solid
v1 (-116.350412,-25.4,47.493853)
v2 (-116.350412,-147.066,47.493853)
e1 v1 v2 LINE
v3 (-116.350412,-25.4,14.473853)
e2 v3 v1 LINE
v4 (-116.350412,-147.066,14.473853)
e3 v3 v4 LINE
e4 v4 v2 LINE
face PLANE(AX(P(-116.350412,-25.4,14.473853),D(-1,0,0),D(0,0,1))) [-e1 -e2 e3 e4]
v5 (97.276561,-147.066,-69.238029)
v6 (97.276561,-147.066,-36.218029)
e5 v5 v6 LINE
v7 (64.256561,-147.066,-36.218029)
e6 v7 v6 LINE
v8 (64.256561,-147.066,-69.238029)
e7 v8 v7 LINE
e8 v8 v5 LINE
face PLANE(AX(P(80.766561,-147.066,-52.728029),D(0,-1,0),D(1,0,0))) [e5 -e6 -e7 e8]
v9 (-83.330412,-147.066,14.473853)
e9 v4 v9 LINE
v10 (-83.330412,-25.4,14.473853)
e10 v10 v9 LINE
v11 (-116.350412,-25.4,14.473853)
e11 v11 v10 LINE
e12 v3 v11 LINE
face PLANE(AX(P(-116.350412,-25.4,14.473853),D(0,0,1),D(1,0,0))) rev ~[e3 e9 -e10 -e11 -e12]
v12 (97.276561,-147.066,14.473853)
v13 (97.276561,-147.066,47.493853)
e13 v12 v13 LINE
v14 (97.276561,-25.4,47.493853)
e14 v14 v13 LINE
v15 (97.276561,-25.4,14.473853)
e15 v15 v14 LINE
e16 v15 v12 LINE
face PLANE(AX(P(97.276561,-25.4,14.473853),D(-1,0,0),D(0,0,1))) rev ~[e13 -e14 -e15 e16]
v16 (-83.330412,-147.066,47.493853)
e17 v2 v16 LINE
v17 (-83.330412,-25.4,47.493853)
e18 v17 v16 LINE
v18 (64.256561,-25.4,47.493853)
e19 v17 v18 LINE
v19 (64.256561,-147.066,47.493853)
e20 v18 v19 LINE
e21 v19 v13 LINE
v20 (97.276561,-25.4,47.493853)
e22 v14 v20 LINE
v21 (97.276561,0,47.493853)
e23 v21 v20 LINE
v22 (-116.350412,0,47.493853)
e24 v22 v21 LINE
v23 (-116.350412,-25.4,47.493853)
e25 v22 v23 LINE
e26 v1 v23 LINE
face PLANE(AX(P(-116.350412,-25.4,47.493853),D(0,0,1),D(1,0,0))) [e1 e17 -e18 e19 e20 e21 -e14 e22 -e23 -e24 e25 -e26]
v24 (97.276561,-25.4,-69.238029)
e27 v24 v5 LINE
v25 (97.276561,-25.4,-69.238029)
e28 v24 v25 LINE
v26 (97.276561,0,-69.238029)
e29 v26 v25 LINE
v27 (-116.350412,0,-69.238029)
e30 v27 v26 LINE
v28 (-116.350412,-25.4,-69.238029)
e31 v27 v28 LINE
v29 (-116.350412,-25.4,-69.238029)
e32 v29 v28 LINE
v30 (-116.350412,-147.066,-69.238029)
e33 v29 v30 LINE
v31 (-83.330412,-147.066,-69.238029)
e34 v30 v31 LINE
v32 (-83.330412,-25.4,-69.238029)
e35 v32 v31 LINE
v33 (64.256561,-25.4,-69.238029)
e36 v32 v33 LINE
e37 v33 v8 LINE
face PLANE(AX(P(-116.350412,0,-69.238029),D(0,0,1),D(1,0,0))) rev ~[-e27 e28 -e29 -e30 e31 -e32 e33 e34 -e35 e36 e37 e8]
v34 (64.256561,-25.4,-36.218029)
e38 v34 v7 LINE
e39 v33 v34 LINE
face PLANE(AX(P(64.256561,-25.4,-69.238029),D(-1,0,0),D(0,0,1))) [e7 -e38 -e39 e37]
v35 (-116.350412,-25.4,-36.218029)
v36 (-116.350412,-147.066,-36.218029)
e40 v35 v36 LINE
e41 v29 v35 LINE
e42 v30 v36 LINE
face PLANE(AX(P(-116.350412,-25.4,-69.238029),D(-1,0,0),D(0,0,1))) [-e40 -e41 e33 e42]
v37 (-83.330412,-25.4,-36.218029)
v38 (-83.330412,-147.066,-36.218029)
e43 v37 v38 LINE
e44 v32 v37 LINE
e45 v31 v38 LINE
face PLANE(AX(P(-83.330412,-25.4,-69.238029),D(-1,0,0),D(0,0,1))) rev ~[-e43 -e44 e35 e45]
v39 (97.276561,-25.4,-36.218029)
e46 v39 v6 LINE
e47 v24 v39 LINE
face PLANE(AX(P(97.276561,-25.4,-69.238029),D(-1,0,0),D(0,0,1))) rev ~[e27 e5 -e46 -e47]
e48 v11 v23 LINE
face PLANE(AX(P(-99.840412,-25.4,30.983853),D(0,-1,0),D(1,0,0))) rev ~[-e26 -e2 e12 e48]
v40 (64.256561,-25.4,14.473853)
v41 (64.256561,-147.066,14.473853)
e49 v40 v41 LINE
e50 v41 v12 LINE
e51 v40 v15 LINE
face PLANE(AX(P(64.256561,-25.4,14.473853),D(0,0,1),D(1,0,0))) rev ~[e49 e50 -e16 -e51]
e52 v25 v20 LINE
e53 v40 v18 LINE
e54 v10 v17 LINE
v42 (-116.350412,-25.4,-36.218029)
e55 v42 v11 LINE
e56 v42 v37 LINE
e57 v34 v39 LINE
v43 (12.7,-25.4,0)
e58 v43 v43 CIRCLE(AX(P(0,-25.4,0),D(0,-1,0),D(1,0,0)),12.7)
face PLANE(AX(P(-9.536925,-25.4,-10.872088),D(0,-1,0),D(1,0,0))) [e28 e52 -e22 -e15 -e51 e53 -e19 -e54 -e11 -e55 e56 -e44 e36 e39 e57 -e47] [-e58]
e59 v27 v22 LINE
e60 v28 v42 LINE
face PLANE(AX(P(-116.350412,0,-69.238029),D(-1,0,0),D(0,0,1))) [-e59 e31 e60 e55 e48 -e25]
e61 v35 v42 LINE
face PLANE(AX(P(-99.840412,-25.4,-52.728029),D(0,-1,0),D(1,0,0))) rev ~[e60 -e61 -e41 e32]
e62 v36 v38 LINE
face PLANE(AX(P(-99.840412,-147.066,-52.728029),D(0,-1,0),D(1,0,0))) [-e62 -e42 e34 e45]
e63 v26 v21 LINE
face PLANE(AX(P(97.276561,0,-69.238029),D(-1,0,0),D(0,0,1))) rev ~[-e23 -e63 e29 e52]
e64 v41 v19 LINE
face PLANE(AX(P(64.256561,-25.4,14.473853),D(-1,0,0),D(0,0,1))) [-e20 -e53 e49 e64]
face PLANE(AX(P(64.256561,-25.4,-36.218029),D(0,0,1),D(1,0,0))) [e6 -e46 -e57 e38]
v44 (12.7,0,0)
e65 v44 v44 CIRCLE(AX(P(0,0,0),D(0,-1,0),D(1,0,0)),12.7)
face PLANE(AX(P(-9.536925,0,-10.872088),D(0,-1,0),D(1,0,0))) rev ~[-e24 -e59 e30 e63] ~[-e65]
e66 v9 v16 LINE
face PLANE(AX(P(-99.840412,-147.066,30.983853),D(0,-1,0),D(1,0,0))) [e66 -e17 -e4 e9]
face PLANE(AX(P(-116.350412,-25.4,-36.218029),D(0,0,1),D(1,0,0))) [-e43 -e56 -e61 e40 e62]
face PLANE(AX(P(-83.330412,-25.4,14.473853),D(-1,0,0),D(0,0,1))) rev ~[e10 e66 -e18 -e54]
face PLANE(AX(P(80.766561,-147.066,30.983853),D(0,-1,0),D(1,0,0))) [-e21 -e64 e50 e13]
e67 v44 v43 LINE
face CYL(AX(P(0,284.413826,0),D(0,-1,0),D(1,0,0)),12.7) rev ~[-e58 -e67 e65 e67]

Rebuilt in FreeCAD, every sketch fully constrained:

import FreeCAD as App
import Part
import Sketcher
from FreeCAD import Vector
Q = App.Units.Quantity


def add_polygon(sketch, points):
    """Adds a closed chain of lines whose ends are joined by coincident constraints."""
    first, n = sketch.GeometryCount, len(points)
    for a, b in zip(points, points[1:] + points[:1]):
        sketch.addGeometry(Part.LineSegment(App.Vector(*a, 0), App.Vector(*b, 0)), False)
    for i in range(n):
        sketch.addConstraint(Sketcher.Constraint("Coincident", first + i, 2, first + (i + 1) % n, 1))

doc = App.newDocument("Part")
body = doc.addObject("PartDesign::Body", "Body")

# Sketch on XZ plane
sketch1 = body.newObject("Sketcher::SketchObject", "Sketch")
sketch1.AttachmentSupport = (doc.getObject("XZ_Plane"), [""])
sketch1.MapMode = "FlatFace"
add_polygon(sketch1, [(-116.350412, 47.493853), (-116.350412, -69.238029), (97.276561, -69.238029), (97.276561, 47.493853)])  # lines 0-3
sketch1.addConstraint([
    Sketcher.Constraint("Vertical", 0),
    Sketcher.Constraint("Horizontal", 1),
    Sketcher.Constraint("Vertical", 2),
    Sketcher.Constraint("Horizontal", 3),
    Sketcher.Constraint("DistanceY", 0, 2, 0, 1, 116.731882),
    Sketcher.Constraint("DistanceX", 1, 1, 1, 2, 213.626973),
    Sketcher.Constraint("DistanceX", 0, 2, -1, 1, 116.350412),
    Sketcher.Constraint("DistanceY", 0, 2, -1, 1, 69.238029),
])
pad1 = body.newObject("PartDesign::Pad", "Pad")
pad1.Profile = sketch1
pad1.Length = Q("1 in")

# Sketch on XZ plane
sketch2 = body.newObject("Sketcher::SketchObject", "Sketch001")
sketch2.AttachmentSupport = (doc.getObject("XZ_Plane"), [""])
sketch2.MapMode = "FlatFace"
sketch2.AttachmentOffset = App.Placement(Vector(0, 0, 1 * 25.4), App.Rotation())
add_polygon(sketch2, [(-116.350412, 47.493853), (-116.350412, 14.473853), (-83.330412, 14.473853), (-83.330412, 47.493853)])  # lines 0-3
add_polygon(sketch2, [(64.256561, 47.493853), (64.256561, 14.473853), (97.276561, 14.473853), (97.276561, 47.493853)])  # lines 4-7
add_polygon(sketch2, [(64.256561, -36.218029), (64.256561, -69.238029), (97.276561, -69.238029), (97.276561, -36.218029)])  # lines 8-11
add_polygon(sketch2, [(-116.350412, -36.218029), (-116.350412, -69.238029), (-83.330412, -69.238029), (-83.330412, -36.218029)])  # lines 12-15
sketch2.addConstraint([
    Sketcher.Constraint("Vertical", 0),
    Sketcher.Constraint("Horizontal", 1),
    Sketcher.Constraint("Vertical", 2),
    Sketcher.Constraint("Horizontal", 3),
    Sketcher.Constraint("Vertical", 4),
    Sketcher.Constraint("Horizontal", 5),
    Sketcher.Constraint("Vertical", 6),
    Sketcher.Constraint("Horizontal", 7),
    Sketcher.Constraint("Vertical", 8),
    Sketcher.Constraint("Horizontal", 9),
    Sketcher.Constraint("Vertical", 10),
    Sketcher.Constraint("Horizontal", 11),
    Sketcher.Constraint("Vertical", 12),
    Sketcher.Constraint("Horizontal", 13),
    Sketcher.Constraint("Vertical", 14),
    Sketcher.Constraint("Horizontal", 15),
    Sketcher.Constraint("Horizontal", 1, 2, 4, 2),
    Sketcher.Constraint("Horizontal", 3, 2, 6, 2),
    Sketcher.Constraint("Horizontal", 9, 2, 12, 2),
    Sketcher.Constraint("Horizontal", 11, 2, 14, 2),
    Sketcher.Constraint("Vertical", 7, 2, 8, 2),
    Sketcher.Constraint("Vertical", 6, 2, 9, 2),
    Sketcher.Constraint("Vertical", 3, 2, 12, 2),
    Sketcher.Constraint("Vertical", 2, 2, 13, 2),
    Sketcher.Constraint("Equal", 3, 5),
    Sketcher.Constraint("Equal", 15, 0),
    Sketcher.Constraint("Equal", 6, 8),
    Sketcher.Constraint("DistanceX", 1, 1, 1, 2, Q("1.3 in")),
    Sketcher.Constraint("DistanceX", 1, 2, -1, 1, 83.330412),
    Sketcher.Constraint("DistanceX", -1, 1, 4, 2, 64.256561),
    Sketcher.Constraint("DistanceY", 8, 2, -1, 1, 69.238029),
    Sketcher.Constraint("DistanceY", 8, 2, 7, 2, 116.731882),
])
pad2 = body.newObject("PartDesign::Pad", "Pad001")
pad2.Profile = sketch2
pad2.Length = Q("4.79 in")

# Sketch on XZ plane
sketch3 = body.newObject("Sketcher::SketchObject", "Sketch002")
sketch3.AttachmentSupport = (doc.getObject("XZ_Plane"), [""])
sketch3.MapMode = "FlatFace"
sketch3.addGeometry(Part.Circle(Vector(0, 0, 0), Vector(0, 0, 1), 12.7), False)
sketch3.addConstraint([
    Sketcher.Constraint("Coincident", 0, 3, -1, 1),
    Sketcher.Constraint("Diameter", 0, Q("1 in")),
])
doc.recompute()
hole = body.newObject("PartDesign::Hole", "Hole")
hole.Profile = sketch3
hole.ThreadType = "None"
hole.Diameter = Q("1 in")
hole.DepthType = "ThroughAll"
hole.Reversed = True

doc.recompute()
